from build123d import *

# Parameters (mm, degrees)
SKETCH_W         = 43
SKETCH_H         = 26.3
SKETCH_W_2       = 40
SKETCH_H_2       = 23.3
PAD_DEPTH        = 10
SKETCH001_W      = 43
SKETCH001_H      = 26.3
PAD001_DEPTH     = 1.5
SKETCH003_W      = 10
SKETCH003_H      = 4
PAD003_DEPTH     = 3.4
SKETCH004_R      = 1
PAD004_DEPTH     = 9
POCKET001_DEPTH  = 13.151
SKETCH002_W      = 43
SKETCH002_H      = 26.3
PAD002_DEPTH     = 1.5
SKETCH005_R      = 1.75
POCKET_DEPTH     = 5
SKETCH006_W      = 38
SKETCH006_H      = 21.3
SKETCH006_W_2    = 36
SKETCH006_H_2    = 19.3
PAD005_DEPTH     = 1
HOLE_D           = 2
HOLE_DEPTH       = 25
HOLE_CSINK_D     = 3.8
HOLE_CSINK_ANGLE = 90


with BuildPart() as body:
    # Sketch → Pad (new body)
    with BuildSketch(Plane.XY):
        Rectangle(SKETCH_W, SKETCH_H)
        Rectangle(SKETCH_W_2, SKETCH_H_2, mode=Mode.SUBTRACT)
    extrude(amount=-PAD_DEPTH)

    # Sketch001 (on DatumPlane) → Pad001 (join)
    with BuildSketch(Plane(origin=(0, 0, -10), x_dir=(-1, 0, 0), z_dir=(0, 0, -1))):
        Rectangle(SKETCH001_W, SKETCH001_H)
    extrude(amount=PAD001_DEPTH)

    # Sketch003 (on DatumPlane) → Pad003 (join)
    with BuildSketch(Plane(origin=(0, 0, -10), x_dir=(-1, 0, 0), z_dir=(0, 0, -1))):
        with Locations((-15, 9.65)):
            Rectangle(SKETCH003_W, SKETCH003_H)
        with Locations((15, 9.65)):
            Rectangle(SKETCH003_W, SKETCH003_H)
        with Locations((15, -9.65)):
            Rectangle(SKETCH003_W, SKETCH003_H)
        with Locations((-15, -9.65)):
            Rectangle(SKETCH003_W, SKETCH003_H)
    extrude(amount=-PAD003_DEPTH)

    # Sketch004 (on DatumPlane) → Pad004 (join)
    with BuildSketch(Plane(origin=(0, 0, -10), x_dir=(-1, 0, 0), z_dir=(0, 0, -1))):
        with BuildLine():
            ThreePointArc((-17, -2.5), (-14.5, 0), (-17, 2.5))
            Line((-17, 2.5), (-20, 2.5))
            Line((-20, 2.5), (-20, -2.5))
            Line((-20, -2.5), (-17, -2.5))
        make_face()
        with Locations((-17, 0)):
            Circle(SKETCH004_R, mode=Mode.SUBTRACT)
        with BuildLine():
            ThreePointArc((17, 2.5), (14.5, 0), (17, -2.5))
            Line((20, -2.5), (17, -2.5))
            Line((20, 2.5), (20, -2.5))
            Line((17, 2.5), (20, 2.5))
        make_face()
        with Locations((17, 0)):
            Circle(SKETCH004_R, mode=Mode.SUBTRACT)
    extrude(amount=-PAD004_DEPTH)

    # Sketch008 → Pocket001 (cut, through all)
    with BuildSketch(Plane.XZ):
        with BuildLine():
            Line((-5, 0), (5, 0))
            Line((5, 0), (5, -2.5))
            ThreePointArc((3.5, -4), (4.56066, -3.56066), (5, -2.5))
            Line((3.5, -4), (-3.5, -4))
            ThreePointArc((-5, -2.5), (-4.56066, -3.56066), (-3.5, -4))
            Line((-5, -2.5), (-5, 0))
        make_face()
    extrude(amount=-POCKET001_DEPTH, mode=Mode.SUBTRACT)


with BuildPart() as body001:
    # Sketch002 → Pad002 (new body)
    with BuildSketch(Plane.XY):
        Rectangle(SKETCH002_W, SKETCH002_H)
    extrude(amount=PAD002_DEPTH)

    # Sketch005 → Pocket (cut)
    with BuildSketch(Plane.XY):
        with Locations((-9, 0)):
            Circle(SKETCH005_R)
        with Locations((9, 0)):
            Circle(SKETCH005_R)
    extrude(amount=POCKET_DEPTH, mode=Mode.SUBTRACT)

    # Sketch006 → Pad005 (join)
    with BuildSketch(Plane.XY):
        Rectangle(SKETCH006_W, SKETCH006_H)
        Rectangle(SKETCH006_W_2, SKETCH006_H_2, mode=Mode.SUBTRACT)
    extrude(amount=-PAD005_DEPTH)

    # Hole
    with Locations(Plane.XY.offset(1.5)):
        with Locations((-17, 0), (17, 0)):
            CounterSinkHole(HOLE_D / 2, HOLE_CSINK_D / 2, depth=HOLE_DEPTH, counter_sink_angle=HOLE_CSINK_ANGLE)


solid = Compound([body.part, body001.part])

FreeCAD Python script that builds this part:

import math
import FreeCAD as App
import Part
import Sketcher

V = App.Vector

doc = App.newDocument("Part")
body = doc.addObject("PartDesign::Body", "Body")

sketch1 = doc.addObject("Sketcher::SketchObject", "Sketch")
body.addObject(sketch1)
sketch1.AttachmentSupport = (doc.XY_Plane, [""])
sketch1.MapMode = "FlatFace"
sketch1.addGeometry([
    Part.LineSegment(V(-22, 13, 0), V(-22, -13, 0)),
    Part.LineSegment(V(-22, -13, 0), V(22, -13, 0)),
    Part.LineSegment(V(22, -13, 0), V(22, 13, 0)),
    Part.LineSegment(V(22, 13, 0), V(-22, 13, 0)),
    Part.LineSegment(V(20, -12, 0), V(-20, -12, 0)),
    Part.LineSegment(V(-20, -12, 0), V(-20, 12, 0)),
    Part.LineSegment(V(-20, 12, 0), V(20, 12, 0)),
    Part.LineSegment(V(20, 12, 0), V(20, -12, 0)),
], False)
sketch1.addConstraint([
    Sketcher.Constraint("Coincident", 0, 2, 1, 1),
    Sketcher.Constraint("Coincident", 1, 2, 2, 1),
    Sketcher.Constraint("Coincident", 2, 2, 3, 1),
    Sketcher.Constraint("Coincident", 3, 2, 0, 1),
    Sketcher.Constraint("Coincident", 4, 2, 5, 1),
    Sketcher.Constraint("Coincident", 5, 2, 6, 1),
    Sketcher.Constraint("Coincident", 6, 2, 7, 1),
    Sketcher.Constraint("Coincident", 7, 2, 4, 1),
    Sketcher.Constraint("Vertical", 0),
    Sketcher.Constraint("Horizontal", 1),
    Sketcher.Constraint("Vertical", 2),
    Sketcher.Constraint("Horizontal", 3),
    Sketcher.Constraint("Horizontal", 4),
    Sketcher.Constraint("Vertical", 5),
    Sketcher.Constraint("Horizontal", 6),
    Sketcher.Constraint("Vertical", 7),
    Sketcher.Constraint("Symmetric", 0, 2, 2, 2, -1, 1),
    Sketcher.Constraint("Symmetric", 4, 2, 6, 2, -1, 1),
    Sketcher.Constraint("DistanceX", 1, 1, 1, 2, 43.0),
    Sketcher.Constraint("DistanceX", 4, 2, 4, 1, 40.0),
    Sketcher.Constraint("DistanceY", 0, 2, 0, 1, 26.3),
    Sketcher.Constraint("DistanceY", 5, 1, 5, 2, 23.3),
])
pad1 = doc.addObject("PartDesign::Pad", "Pad")
body.addObject(pad1)
pad1.Profile = sketch1
pad1.Length = 10
pad1.Reversed = True

sketch2 = doc.addObject("Sketcher::SketchObject", "Sketch001")
body.addObject(sketch2)
sketch2.AttachmentSupport = (doc.XY_Plane, [""])
sketch2.MapMode = "FlatFace"
sketch2.AttachmentOffset = App.Placement(V(0, 0, -10), App.Rotation())
sketch2.addGeometry([
    Part.LineSegment(V(22, 13, 0), V(22, -13, 0)),
    Part.LineSegment(V(22, -13, 0), V(-22, -13, 0)),
    Part.LineSegment(V(-22, -13, 0), V(-22, 13, 0)),
    Part.LineSegment(V(-22, 13, 0), V(22, 13, 0)),
], False)
sketch2.addConstraint([
    Sketcher.Constraint("Coincident", 0, 2, 1, 1),
    Sketcher.Constraint("Coincident", 1, 2, 2, 1),
    Sketcher.Constraint("Coincident", 2, 2, 3, 1),
    Sketcher.Constraint("Coincident", 3, 2, 0, 1),
    Sketcher.Constraint("Vertical", 0),
    Sketcher.Constraint("Horizontal", 1),
    Sketcher.Constraint("Vertical", 2),
    Sketcher.Constraint("Horizontal", 3),
    Sketcher.Constraint("Symmetric", 0, 2, 2, 2, -1, 1),
    Sketcher.Constraint("DistanceX", 1, 2, 1, 1, 43.0),
    Sketcher.Constraint("DistanceY", 0, 2, 0, 1, 26.3),
])
pad2 = doc.addObject("PartDesign::Pad", "Pad001")
body.addObject(pad2)
pad2.Profile = sketch2
pad2.Length = 1.5
pad2.Reversed = True

sketch3 = doc.addObject("Sketcher::SketchObject", "Sketch002")
body.addObject(sketch3)
sketch3.AttachmentSupport = (doc.XY_Plane, [""])
sketch3.MapMode = "FlatFace"
sketch3.AttachmentOffset = App.Placement(V(0, 0, -10), App.Rotation())
sketch3.addGeometry([
    Part.LineSegment(V(20, 11.7, 0), V(20, 7.7, 0)),
    Part.LineSegment(V(20, 7.7, 0), V(10, 7.7, 0)),
    Part.LineSegment(V(10, 7.7, 0), V(10, 11.7, 0)),
    Part.LineSegment(V(10, 11.7, 0), V(20, 11.7, 0)),
    Part.LineSegment(V(-10, 11.7, 0), V(-10, 7.7, 0)),
    Part.LineSegment(V(-10, 7.7, 0), V(-20, 7.7, 0)),
    Part.LineSegment(V(-20, 7.7, 0), V(-20, 11.7, 0)),
    Part.LineSegment(V(-20, 11.7, 0), V(-10, 11.7, 0)),
    Part.LineSegment(V(-10, -7.7, 0), V(-10, -11.7, 0)),
    Part.LineSegment(V(-10, -11.7, 0), V(-20, -11.7, 0)),
    Part.LineSegment(V(-20, -11.7, 0), V(-20, -7.7, 0)),
    Part.LineSegment(V(-20, -7.7, 0), V(-10, -7.7, 0)),
    Part.LineSegment(V(20, -7.7, 0), V(20, -11.7, 0)),
    Part.LineSegment(V(20, -11.7, 0), V(10, -11.7, 0)),
    Part.LineSegment(V(10, -11.7, 0), V(10, -7.7, 0)),
    Part.LineSegment(V(10, -7.7, 0), V(20, -7.7, 0)),
], False)
sketch3.addConstraint([
    Sketcher.Constraint("Coincident", 0, 2, 1, 1),
    Sketcher.Constraint("Coincident", 1, 2, 2, 1),
    Sketcher.Constraint("Coincident", 2, 2, 3, 1),
    Sketcher.Constraint("Coincident", 3, 2, 0, 1),
    Sketcher.Constraint("Coincident", 4, 2, 5, 1),
    Sketcher.Constraint("Coincident", 5, 2, 6, 1),
    Sketcher.Constraint("Coincident", 6, 2, 7, 1),
    Sketcher.Constraint("Coincident", 7, 2, 4, 1),
    Sketcher.Constraint("Coincident", 8, 2, 9, 1),
    Sketcher.Constraint("Coincident", 9, 2, 10, 1),
    Sketcher.Constraint("Coincident", 10, 2, 11, 1),
    Sketcher.Constraint("Coincident", 11, 2, 8, 1),
    Sketcher.Constraint("Coincident", 12, 2, 13, 1),
    Sketcher.Constraint("Coincident", 13, 2, 14, 1),
    Sketcher.Constraint("Coincident", 14, 2, 15, 1),
    Sketcher.Constraint("Coincident", 15, 2, 12, 1),
    Sketcher.Constraint("Vertical", 0),
    Sketcher.Constraint("Horizontal", 1),
    Sketcher.Constraint("Vertical", 2),
    Sketcher.Constraint("Horizontal", 3),
    Sketcher.Constraint("Vertical", 4),
    Sketcher.Constraint("Horizontal", 5),
    Sketcher.Constraint("Vertical", 6),
    Sketcher.Constraint("Horizontal", 7),
    Sketcher.Constraint("Vertical", 8),
    Sketcher.Constraint("Horizontal", 9),
    Sketcher.Constraint("Vertical", 10),
    Sketcher.Constraint("Horizontal", 11),
    Sketcher.Constraint("Vertical", 12),
    Sketcher.Constraint("Horizontal", 13),
    Sketcher.Constraint("Vertical", 14),
    Sketcher.Constraint("Horizontal", 15),
    Sketcher.Constraint("Symmetric", 2, 2, 8, 2, -1, 1),
    Sketcher.Constraint("Symmetric", 0, 2, 10, 2, -1, 1),
    Sketcher.Constraint("Symmetric", 6, 2, 12, 2, -1, 1),
    Sketcher.Constraint("Symmetric", 4, 2, 14, 2, -1, 1),
    Sketcher.Constraint("Symmetric", 1, 2, 4, 2, -2),
    Sketcher.Constraint("Symmetric", 3, 2, 6, 2, -2),
    Sketcher.Constraint("DistanceX", 1, 2, 1, 1, 10.0),
    Sketcher.Constraint("DistanceY", 0, 2, 0, 1, 4.0),
    Sketcher.Constraint("DistanceX", -1, 1, 0, 2, 20.0),
    Sketcher.Constraint("DistanceY", 8, 2, 4, 2, 19.3),
])
pad3 = doc.addObject("PartDesign::Pad", "Pad002")
body.addObject(pad3)
pad3.Profile = sketch3
pad3.Length = 3.4

sketch4 = doc.addObject("Sketcher::SketchObject", "Sketch003")
body.addObject(sketch4)
sketch4.AttachmentSupport = (doc.XY_Plane, [""])
sketch4.MapMode = "FlatFace"
sketch4.AttachmentOffset = App.Placement(V(0, 0, -10), App.Rotation())
sketch4.addGeometry([
    Part.ArcOfCircle(Part.Circle(V(17, 0, 0), V(0, 0, 1), 2.5), math.radians(90), math.radians(270)),
    Part.LineSegment(V(17, 2.5, 0), V(20, 2.5, 0)),
    Part.LineSegment(V(20, 2.5, 0), V(20, -2.5, 0)),
    Part.LineSegment(V(20, -2.5, 0), V(17, -2.5, 0)),
    Part.Circle(V(17, 0, 0), V(0, 0, 1), 1),
    Part.ArcOfCircle(Part.Circle(V(-17, 0, 0), V(0, 0, 1), 2.5), math.radians(-90), math.radians(90)),
    Part.LineSegment(V(-17, -2.5, 0), V(-20, -2.5, 0)),
    Part.LineSegment(V(-20, -2.5, 0), V(-20, 2.5, 0)),
    Part.LineSegment(V(-20, 2.5, 0), V(-17, 2.5, 0)),
    Part.Circle(V(-17, 0, 0), V(0, 0, 1), 1),
], False)
sketch4.addConstraint([
    Sketcher.Constraint("Tangent", 0, 1, 1, 1),
    Sketcher.Constraint("Coincident", 1, 2, 2, 1),
    Sketcher.Constraint("Coincident", 2, 2, 3, 1),
    Sketcher.Constraint("Tangent", 3, 2, 0, 2),
    Sketcher.Constraint("Tangent", 5, 1, 6, 1),
    Sketcher.Constraint("Coincident", 6, 2, 7, 1),
    Sketcher.Constraint("Coincident", 7, 2, 8, 1),
    Sketcher.Constraint("Tangent", 8, 2, 5, 2),
    Sketcher.Constraint("Horizontal", 1),
    Sketcher.Constraint("Vertical", 2),
    Sketcher.Constraint("Horizontal", 3),
    Sketcher.Constraint("Horizontal", 6),
    Sketcher.Constraint("Vertical", 7),
    Sketcher.Constraint("Horizontal", 8),
    Sketcher.Constraint("Coincident", 4, 3, 0, 3),
    Sketcher.Constraint("Coincident", 9, 3, 5, 3),
    Sketcher.Constraint("Equal", 0, 5),
    Sketcher.Constraint("Equal", 4, 9),
    Sketcher.Constraint("Symmetric", 0, 3, 5, 3, -1, 1),
    Sketcher.Constraint("Symmetric", 2, 2, 6, 2, -2),
    Sketcher.Constraint("Diameter", 4, 2.0),
    Sketcher.Constraint("Radius", 0, 2.5),
    Sketcher.Constraint("DistanceX", 1, 1, 1, 2, 3.0),
    Sketcher.Constraint("DistanceX", -1, 1, 0, 3, 17.0),
])
pad4 = doc.addObject("PartDesign::Pad", "Pad003")
body.addObject(pad4)
pad4.Profile = sketch4
pad4.Length = 9

sketch5 = doc.addObject("Sketcher::SketchObject", "Sketch004")
body.addObject(sketch5)
sketch5.AttachmentSupport = (doc.XZ_Plane, [""])
sketch5.MapMode = "FlatFace"
sketch5.addGeometry([
    Part.LineSegment(V(5, 0, 0), V(-5, 0, 0)),
    Part.LineSegment(V(-5, 0, 0), V(-5, -2.5, 0)),
    Part.ArcOfCircle(Part.Circle(V(-3.5, -2.5, 0), V(0, 0, 1), 1.5), math.radians(-180), math.radians(-90)),
    Part.LineSegment(V(-3.5, -4, 0), V(3.5, -4, 0)),
    Part.ArcOfCircle(Part.Circle(V(3.5, -2.5, 0), V(0, 0, 1), 1.5), math.radians(-90), math.radians(0)),
    Part.LineSegment(V(5, -2.5, 0), V(5, 0, 0)),
], False)
sketch5.addConstraint([
    Sketcher.Constraint("Coincident", 0, 2, 1, 1),
    Sketcher.Constraint("Tangent", 1, 2, 2, 1),
    Sketcher.Constraint("Tangent", 2, 2, 3, 1),
    Sketcher.Constraint("Tangent", 3, 2, 4, 1),
    Sketcher.Constraint("Tangent", 4, 2, 5, 1),
    Sketcher.Constraint("Coincident", 5, 2, 0, 1),
    Sketcher.Constraint("Horizontal", 0),
    Sketcher.Constraint("Vertical", 1),
    Sketcher.Constraint("Horizontal", 3),
    Sketcher.Constraint("Vertical", 5),
    Sketcher.Constraint("Equal", 2, 4),
    Sketcher.Constraint("Symmetric", 0, 2, 5, 2, -1, 1),
    Sketcher.Constraint("Radius", 2, 1.500001),
    Sketcher.Constraint("DistanceX", 0, 2, 0, 1, 10.0),
    Sketcher.Constraint("DistanceY", 1, 2, 1, 1, 2.5),
])
pocket1 = doc.addObject("PartDesign::Pocket", "Pocket")
body.addObject(pocket1)
pocket1.Profile = sketch5
pocket1.Type = "ThroughAll"
body2 = doc.addObject("PartDesign::Body", "Body001")

sketch6 = doc.addObject("Sketcher::SketchObject", "Sketch005")
body2.addObject(sketch6)
sketch6.AttachmentSupport = (doc.getObject("XY_Plane001"), [""])
sketch6.MapMode = "FlatFace"
sketch6.addGeometry([
    Part.LineSegment(V(-22, 13, 0), V(-22, -13, 0)),
    Part.LineSegment(V(-22, -13, 0), V(22, -13, 0)),
    Part.LineSegment(V(22, -13, 0), V(22, 13, 0)),
    Part.LineSegment(V(22, 13, 0), V(-22, 13, 0)),
], False)
sketch6.addConstraint([
    Sketcher.Constraint("Coincident", 0, 2, 1, 1),
    Sketcher.Constraint("Coincident", 1, 2, 2, 1),
    Sketcher.Constraint("Coincident", 2, 2, 3, 1),
    Sketcher.Constraint("Coincident", 3, 2, 0, 1),
    Sketcher.Constraint("Vertical", 0),
    Sketcher.Constraint("Horizontal", 1),
    Sketcher.Constraint("Vertical", 2),
    Sketcher.Constraint("Horizontal", 3),
    Sketcher.Constraint("Symmetric", 0, 2, 2, 2, -1, 1),
    Sketcher.Constraint("DistanceX", 1, 1, 1, 2, 43.0),
    Sketcher.Constraint("DistanceY", 0, 2, 0, 1, 26.3),
])
pad5 = doc.addObject("PartDesign::Pad", "Pad004")
body2.addObject(pad5)
pad5.Profile = sketch6
pad5.Length = 1.5

sketch7 = doc.addObject("Sketcher::SketchObject", "Sketch006")
body2.addObject(sketch7)
sketch7.AttachmentSupport = (doc.getObject("XY_Plane001"), [""])
sketch7.MapMode = "FlatFace"
sketch7.addGeometry([
    Part.Circle(V(-9, 0, 0), V(0, 0, 1), 1.8),
    Part.Circle(V(9, 0, 0), V(0, 0, 1), 1.8),
], False)
sketch7.addConstraint([
    Sketcher.Constraint("Equal", 0, 1),
    Sketcher.Constraint("Symmetric", 0, 3, 1, 3, -1, 1),
    Sketcher.Constraint("PointOnObject", 0, 3, -1),
    Sketcher.Constraint("Diameter", 0, 3.5),
    Sketcher.Constraint("DistanceX", 0, 3, -1, 1, 9.0),
])
pocket2 = doc.addObject("PartDesign::Pocket", "Pocket001")
body2.addObject(pocket2)
pocket2.Profile = sketch7
pocket2.Length = 5
pocket2.Reversed = True

sketch8 = doc.addObject("Sketcher::SketchObject", "Sketch007")
body2.addObject(sketch8)
sketch8.AttachmentSupport = (doc.getObject("XY_Plane001"), [""])
sketch8.MapMode = "FlatFace"
sketch8.addGeometry([
    Part.LineSegment(V(-19, 11, 0), V(-19, -11, 0)),
    Part.LineSegment(V(-19, -11, 0), V(19, -11, 0)),
    Part.LineSegment(V(19, -11, 0), V(19, 11, 0)),
    Part.LineSegment(V(19, 11, 0), V(-19, 11, 0)),
    Part.LineSegment(V(18, -10, 0), V(-18, -10, 0)),
    Part.LineSegment(V(-18, -10, 0), V(-18, 10, 0)),
    Part.LineSegment(V(-18, 10, 0), V(18, 10, 0)),
    Part.LineSegment(V(18, 10, 0), V(18, -10, 0)),
], False)
sketch8.addConstraint([
    Sketcher.Constraint("Coincident", 0, 2, 1, 1),
    Sketcher.Constraint("Coincident", 1, 2, 2, 1),
    Sketcher.Constraint("Coincident", 2, 2, 3, 1),
    Sketcher.Constraint("Coincident", 3, 2, 0, 1),
    Sketcher.Constraint("Coincident", 4, 2, 5, 1),
    Sketcher.Constraint("Coincident", 5, 2, 6, 1),
    Sketcher.Constraint("Coincident", 6, 2, 7, 1),
    Sketcher.Constraint("Coincident", 7, 2, 4, 1),
    Sketcher.Constraint("Vertical", 0),
    Sketcher.Constraint("Horizontal", 1),
    Sketcher.Constraint("Vertical", 2),
    Sketcher.Constraint("Horizontal", 3),
    Sketcher.Constraint("Horizontal", 4),
    Sketcher.Constraint("Vertical", 5),
    Sketcher.Constraint("Horizontal", 6),
    Sketcher.Constraint("Vertical", 7),
    Sketcher.Constraint("Symmetric", 0, 2, 2, 2, -1, 1),
    Sketcher.Constraint("Symmetric", 4, 2, 6, 2, -1, 1),
    Sketcher.Constraint("DistanceX", 1, 1, 1, 2, 38.0),
    Sketcher.Constraint("DistanceX", 4, 2, 4, 1, 36.0),
    Sketcher.Constraint("DistanceY", 0, 2, 0, 1, 21.3),
    Sketcher.Constraint("DistanceY", 5, 1, 5, 2, 19.3),
])
pad6 = doc.addObject("PartDesign::Pad", "Pad005")
body2.addObject(pad6)
pad6.Profile = sketch8
pad6.Length = 1
pad6.Reversed = True

sketch9 = doc.addObject("Sketcher::SketchObject", "Sketch008")
body2.addObject(sketch9)
sketch9.AttachmentSupport = (doc.getObject("XY_Plane001"), [""])
sketch9.MapMode = "FlatFace"
sketch9.AttachmentOffset = App.Placement(V(0, 0, 1.5), App.Rotation())
sketch9.addGeometry([
    Part.Circle(V(-17, 0, 0), V(0, 0, 1), 1),
    Part.Circle(V(17, 0, 0), V(0, 0, 1), 1),
], False)
sketch9.addConstraint([
    Sketcher.Constraint("Equal", 0, 1),
    Sketcher.Constraint("Symmetric", 0, 3, 1, 3, -1, 1),
    Sketcher.Constraint("PointOnObject", 0, 3, -1),
    Sketcher.Constraint("Diameter", 0, 2.0),
    Sketcher.Constraint("DistanceX", 0, 3, -1, 1, 17.0),
])
doc.recompute()
hole = doc.addObject("PartDesign::Hole", "Hole")
body2.addObject(hole)
hole.Profile = sketch9
hole.ThreadType = "None"
hole.Diameter = 2
hole.DepthType = "Dimension"
hole.Depth = 25
hole.DrillPoint = "Flat"
hole.HoleCutType = "Countersink"
hole.HoleCutDiameter = 3.8
hole.HoleCutCountersinkAngle = 90

doc.recompute()
